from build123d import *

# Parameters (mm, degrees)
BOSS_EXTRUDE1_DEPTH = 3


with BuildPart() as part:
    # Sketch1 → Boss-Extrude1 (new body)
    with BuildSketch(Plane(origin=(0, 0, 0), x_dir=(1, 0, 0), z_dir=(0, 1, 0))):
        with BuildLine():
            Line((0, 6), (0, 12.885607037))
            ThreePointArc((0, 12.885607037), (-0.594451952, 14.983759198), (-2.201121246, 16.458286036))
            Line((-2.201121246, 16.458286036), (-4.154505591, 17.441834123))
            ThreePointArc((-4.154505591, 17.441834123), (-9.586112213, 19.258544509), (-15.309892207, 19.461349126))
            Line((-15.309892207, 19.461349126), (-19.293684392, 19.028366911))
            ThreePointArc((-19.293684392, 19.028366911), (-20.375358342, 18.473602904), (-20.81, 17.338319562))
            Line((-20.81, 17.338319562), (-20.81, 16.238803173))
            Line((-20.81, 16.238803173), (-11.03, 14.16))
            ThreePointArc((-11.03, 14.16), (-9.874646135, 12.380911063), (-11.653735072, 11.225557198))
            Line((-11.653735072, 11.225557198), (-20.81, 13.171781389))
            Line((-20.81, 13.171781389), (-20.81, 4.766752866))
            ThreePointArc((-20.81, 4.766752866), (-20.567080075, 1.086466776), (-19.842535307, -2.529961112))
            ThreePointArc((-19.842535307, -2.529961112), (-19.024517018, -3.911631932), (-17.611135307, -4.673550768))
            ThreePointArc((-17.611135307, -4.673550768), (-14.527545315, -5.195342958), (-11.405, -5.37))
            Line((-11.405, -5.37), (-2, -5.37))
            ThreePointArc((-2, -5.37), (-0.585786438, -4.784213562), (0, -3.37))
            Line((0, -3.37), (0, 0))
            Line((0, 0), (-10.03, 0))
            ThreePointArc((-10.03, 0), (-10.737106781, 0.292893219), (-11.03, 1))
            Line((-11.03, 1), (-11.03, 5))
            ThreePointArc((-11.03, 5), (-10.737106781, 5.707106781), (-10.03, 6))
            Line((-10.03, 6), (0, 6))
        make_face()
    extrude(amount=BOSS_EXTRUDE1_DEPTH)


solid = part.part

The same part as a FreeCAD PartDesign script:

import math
import FreeCAD as App
import Part
import Sketcher
from FreeCAD import Vector
Q = App.Units.Quantity

doc = App.newDocument("Part")
body = doc.addObject("PartDesign::Body", "Body")

sketch1 = body.newObject("Sketcher::SketchObject", "Sketch")
sketch1.AttachmentSupport = (doc.getObject("XZ_Plane"), [""])
sketch1.MapMode = "FlatFace"
sketch1.addGeometry([
    Part.LineSegment(Vector(0, -6, 0), Vector(0, -12.885607, 0)),
    Part.ArcOfCircle(Part.Circle(Vector(-4, -12.885607, 0), Vector(0, 0, 1), 4), math.radians(-63.274299), math.radians(0)),
    Part.LineSegment(Vector(-2.201121, -16.458286, 0), Vector(-4.154506, -17.441834, 0)),
    Part.ArcOfCircle(Part.Circle(Vector(-13.148899, 0.421561, 0), Vector(0, 0, 1), 20), math.radians(-96.202898), math.radians(-63.274299)),
    Part.LineSegment(Vector(-15.309892, -19.461349, 0), Vector(-19.293684, -19.028367, 0)),
    Part.ArcOfCircle(Part.Circle(Vector(-19.11, -17.33832, 0), Vector(0, 0, 1), 1.7), math.radians(180), math.radians(263.797102)),
    Part.LineSegment(Vector(-20.81, -17.33832, 0), Vector(-20.81, -16.238803, 0)),
    Part.LineSegment(Vector(-20.81, -16.238803, 0), Vector(-11.03, -14.16, 0)),
    Part.ArcOfCircle(Part.Circle(Vector(-11.341868, -12.692779, 0), Vector(0, 0, 1), 1.5), math.radians(-78), math.radians(102)),
    Part.LineSegment(Vector(-11.653735, -11.225557, 0), Vector(-20.81, -13.171781, 0)),
    Part.LineSegment(Vector(-20.81, -13.171781, 0), Vector(-20.81, -4.766753, 0)),
    Part.ArcOfCircle(Part.Circle(Vector(7.19, -4.766753, 0), Vector(0, 0, 1), 28), math.radians(164.894515), math.radians(180)),
    Part.ArcOfCircle(Part.Circle(Vector(-16.946192, 1.74817, 0), Vector(0, 0, 1), 3), math.radians(102.805828), math.radians(164.894515)),
    Part.ArcOfCircle(Part.Circle(Vector(-11.405, -22.63, 0), Vector(0, 0, 1), 28), math.radians(90), math.radians(102.805828)),
    Part.LineSegment(Vector(-11.405, 5.37, 0), Vector(-2, 5.37, 0)),
    Part.ArcOfCircle(Part.Circle(Vector(-2, 3.37, 0), Vector(0, 0, 1), 2), math.radians(0), math.radians(90)),
    Part.LineSegment(Vector(0, 3.37, 0), Vector(0, 0, 0)),
    Part.LineSegment(Vector(0, 0, 0), Vector(-10.03, 0, 0)),
    Part.ArcOfCircle(Part.Circle(Vector(-10.03, -1, 0), Vector(0, 0, 1), 1), math.radians(90), math.radians(180)),
    Part.LineSegment(Vector(-11.03, -1, 0), Vector(-11.03, -5, 0)),
    Part.ArcOfCircle(Part.Circle(Vector(-10.03, -5, 0), Vector(0, 0, 1), 1), math.radians(-180), math.radians(-90)),
    Part.LineSegment(Vector(-10.03, -6, 0), Vector(0, -6, 0)),
], False)
sketch1.addConstraint([
    Sketcher.Constraint("Tangent", 0, 2, 1, 2),
    Sketcher.Constraint("Tangent", 1, 1, 2, 1),
    Sketcher.Constraint("Tangent", 2, 2, 3, 2),
    Sketcher.Constraint("Tangent", 3, 1, 4, 1),
    Sketcher.Constraint("Tangent", 4, 2, 5, 2),
    Sketcher.Constraint("Tangent", 5, 1, 6, 1),
    Sketcher.Constraint("Coincident", 6, 2, 7, 1),
    Sketcher.Constraint("Tangent", 7, 2, 8, 1),
    Sketcher.Constraint("Tangent", 8, 2, 9, 1),
    Sketcher.Constraint("Coincident", 9, 2, 10, 1),
    Sketcher.Constraint("Tangent", 10, 2, 11, 2),
    Sketcher.Constraint("Tangent", 11, 1, 12, 2),
    Sketcher.Constraint("Tangent", 12, 1, 13, 2),
    Sketcher.Constraint("Tangent", 13, 1, 14, 1),
    Sketcher.Constraint("Tangent", 14, 2, 15, 2),
    Sketcher.Constraint("Tangent", 15, 1, 16, 1),
    Sketcher.Constraint("Coincident", 16, 2, 17, 1),
    Sketcher.Constraint("Tangent", 17, 2, 18, 1),
    Sketcher.Constraint("Tangent", 18, 2, 19, 1),
    Sketcher.Constraint("Tangent", 19, 2, 20, 1),
    Sketcher.Constraint("Tangent", 20, 2, 21, 1),
    Sketcher.Constraint("Coincident", 21, 2, 0, 1),
    Sketcher.Constraint("Vertical", 0),
    Sketcher.Constraint("Vertical", 6),
    Sketcher.Constraint("Vertical", 10),
    Sketcher.Constraint("Horizontal", 14),
    Sketcher.Constraint("Vertical", 16),
    Sketcher.Constraint("Horizontal", 17),
    Sketcher.Constraint("Vertical", 19),
    Sketcher.Constraint("Horizontal", 21),
    Sketcher.Constraint("Coincident", 16, 2, -1, 1),
    Sketcher.Constraint("Equal", 11, 13),
    Sketcher.Constraint("Equal", 18, 20),
    Sketcher.Constraint("PointOnObject", 0, 2, -2),
    Sketcher.Constraint("Parallel", 7, 9),
    Sketcher.Constraint("Vertical", 6, 2, 9, 2),
    Sketcher.Constraint("Vertical", 7, 2, 18, 2),
    Sketcher.Constraint("Radius", 1, 4.0),
    Sketcher.Constraint("Radius", 3, 20.0),
    Sketcher.Constraint("Radius", 11, 28.0),
    Sketcher.Constraint("Radius", 12, 3.0),
    Sketcher.Constraint("Radius", 15, 2.0),
    Sketcher.Constraint("Radius", 18, 1.0),
    Sketcher.Constraint("Radius", 5, 1.7),
    Sketcher.Constraint("Radius", 8, 1.5),
    Sketcher.Constraint("DistanceY", 19, 2, 19, 1, 4.0),
    Sketcher.Constraint("Angle", 7, Q("12 deg")),
    Sketcher.Constraint("DistanceX", 17, 2, 17, 1, 10.03),
    Sketcher.Constraint("DistanceY", 16, 2, 16, 1, 3.37),
    Sketcher.Constraint("DistanceX", 14, 1, 14, 2, 9.405),
    Sketcher.Constraint("DistanceX", 5, 3, -1, 1, 19.11),
    Sketcher.Constraint("DistanceY", 7, 2, -1, 1, 14.16),
    Sketcher.Constraint("DistanceY", 10, 1, 10, 2, 8.405029),
    Sketcher.Constraint("DistanceX", 3, 3, -1, 1, 13.148899),
    Sketcher.Constraint("DistanceY", 3, 3, 11, 1, 2.1084),
    Sketcher.Constraint("DistanceY", 0, 2, 0, 1, 6.885607),
    Sketcher.Constraint("DistanceY", 6, 1, 6, 2, 1.099516),
])
pad1 = body.newObject("PartDesign::Pad", "Pad")
pad1.Profile = sketch1
pad1.Length = 3
pad1.Reversed = True

doc.recompute()
